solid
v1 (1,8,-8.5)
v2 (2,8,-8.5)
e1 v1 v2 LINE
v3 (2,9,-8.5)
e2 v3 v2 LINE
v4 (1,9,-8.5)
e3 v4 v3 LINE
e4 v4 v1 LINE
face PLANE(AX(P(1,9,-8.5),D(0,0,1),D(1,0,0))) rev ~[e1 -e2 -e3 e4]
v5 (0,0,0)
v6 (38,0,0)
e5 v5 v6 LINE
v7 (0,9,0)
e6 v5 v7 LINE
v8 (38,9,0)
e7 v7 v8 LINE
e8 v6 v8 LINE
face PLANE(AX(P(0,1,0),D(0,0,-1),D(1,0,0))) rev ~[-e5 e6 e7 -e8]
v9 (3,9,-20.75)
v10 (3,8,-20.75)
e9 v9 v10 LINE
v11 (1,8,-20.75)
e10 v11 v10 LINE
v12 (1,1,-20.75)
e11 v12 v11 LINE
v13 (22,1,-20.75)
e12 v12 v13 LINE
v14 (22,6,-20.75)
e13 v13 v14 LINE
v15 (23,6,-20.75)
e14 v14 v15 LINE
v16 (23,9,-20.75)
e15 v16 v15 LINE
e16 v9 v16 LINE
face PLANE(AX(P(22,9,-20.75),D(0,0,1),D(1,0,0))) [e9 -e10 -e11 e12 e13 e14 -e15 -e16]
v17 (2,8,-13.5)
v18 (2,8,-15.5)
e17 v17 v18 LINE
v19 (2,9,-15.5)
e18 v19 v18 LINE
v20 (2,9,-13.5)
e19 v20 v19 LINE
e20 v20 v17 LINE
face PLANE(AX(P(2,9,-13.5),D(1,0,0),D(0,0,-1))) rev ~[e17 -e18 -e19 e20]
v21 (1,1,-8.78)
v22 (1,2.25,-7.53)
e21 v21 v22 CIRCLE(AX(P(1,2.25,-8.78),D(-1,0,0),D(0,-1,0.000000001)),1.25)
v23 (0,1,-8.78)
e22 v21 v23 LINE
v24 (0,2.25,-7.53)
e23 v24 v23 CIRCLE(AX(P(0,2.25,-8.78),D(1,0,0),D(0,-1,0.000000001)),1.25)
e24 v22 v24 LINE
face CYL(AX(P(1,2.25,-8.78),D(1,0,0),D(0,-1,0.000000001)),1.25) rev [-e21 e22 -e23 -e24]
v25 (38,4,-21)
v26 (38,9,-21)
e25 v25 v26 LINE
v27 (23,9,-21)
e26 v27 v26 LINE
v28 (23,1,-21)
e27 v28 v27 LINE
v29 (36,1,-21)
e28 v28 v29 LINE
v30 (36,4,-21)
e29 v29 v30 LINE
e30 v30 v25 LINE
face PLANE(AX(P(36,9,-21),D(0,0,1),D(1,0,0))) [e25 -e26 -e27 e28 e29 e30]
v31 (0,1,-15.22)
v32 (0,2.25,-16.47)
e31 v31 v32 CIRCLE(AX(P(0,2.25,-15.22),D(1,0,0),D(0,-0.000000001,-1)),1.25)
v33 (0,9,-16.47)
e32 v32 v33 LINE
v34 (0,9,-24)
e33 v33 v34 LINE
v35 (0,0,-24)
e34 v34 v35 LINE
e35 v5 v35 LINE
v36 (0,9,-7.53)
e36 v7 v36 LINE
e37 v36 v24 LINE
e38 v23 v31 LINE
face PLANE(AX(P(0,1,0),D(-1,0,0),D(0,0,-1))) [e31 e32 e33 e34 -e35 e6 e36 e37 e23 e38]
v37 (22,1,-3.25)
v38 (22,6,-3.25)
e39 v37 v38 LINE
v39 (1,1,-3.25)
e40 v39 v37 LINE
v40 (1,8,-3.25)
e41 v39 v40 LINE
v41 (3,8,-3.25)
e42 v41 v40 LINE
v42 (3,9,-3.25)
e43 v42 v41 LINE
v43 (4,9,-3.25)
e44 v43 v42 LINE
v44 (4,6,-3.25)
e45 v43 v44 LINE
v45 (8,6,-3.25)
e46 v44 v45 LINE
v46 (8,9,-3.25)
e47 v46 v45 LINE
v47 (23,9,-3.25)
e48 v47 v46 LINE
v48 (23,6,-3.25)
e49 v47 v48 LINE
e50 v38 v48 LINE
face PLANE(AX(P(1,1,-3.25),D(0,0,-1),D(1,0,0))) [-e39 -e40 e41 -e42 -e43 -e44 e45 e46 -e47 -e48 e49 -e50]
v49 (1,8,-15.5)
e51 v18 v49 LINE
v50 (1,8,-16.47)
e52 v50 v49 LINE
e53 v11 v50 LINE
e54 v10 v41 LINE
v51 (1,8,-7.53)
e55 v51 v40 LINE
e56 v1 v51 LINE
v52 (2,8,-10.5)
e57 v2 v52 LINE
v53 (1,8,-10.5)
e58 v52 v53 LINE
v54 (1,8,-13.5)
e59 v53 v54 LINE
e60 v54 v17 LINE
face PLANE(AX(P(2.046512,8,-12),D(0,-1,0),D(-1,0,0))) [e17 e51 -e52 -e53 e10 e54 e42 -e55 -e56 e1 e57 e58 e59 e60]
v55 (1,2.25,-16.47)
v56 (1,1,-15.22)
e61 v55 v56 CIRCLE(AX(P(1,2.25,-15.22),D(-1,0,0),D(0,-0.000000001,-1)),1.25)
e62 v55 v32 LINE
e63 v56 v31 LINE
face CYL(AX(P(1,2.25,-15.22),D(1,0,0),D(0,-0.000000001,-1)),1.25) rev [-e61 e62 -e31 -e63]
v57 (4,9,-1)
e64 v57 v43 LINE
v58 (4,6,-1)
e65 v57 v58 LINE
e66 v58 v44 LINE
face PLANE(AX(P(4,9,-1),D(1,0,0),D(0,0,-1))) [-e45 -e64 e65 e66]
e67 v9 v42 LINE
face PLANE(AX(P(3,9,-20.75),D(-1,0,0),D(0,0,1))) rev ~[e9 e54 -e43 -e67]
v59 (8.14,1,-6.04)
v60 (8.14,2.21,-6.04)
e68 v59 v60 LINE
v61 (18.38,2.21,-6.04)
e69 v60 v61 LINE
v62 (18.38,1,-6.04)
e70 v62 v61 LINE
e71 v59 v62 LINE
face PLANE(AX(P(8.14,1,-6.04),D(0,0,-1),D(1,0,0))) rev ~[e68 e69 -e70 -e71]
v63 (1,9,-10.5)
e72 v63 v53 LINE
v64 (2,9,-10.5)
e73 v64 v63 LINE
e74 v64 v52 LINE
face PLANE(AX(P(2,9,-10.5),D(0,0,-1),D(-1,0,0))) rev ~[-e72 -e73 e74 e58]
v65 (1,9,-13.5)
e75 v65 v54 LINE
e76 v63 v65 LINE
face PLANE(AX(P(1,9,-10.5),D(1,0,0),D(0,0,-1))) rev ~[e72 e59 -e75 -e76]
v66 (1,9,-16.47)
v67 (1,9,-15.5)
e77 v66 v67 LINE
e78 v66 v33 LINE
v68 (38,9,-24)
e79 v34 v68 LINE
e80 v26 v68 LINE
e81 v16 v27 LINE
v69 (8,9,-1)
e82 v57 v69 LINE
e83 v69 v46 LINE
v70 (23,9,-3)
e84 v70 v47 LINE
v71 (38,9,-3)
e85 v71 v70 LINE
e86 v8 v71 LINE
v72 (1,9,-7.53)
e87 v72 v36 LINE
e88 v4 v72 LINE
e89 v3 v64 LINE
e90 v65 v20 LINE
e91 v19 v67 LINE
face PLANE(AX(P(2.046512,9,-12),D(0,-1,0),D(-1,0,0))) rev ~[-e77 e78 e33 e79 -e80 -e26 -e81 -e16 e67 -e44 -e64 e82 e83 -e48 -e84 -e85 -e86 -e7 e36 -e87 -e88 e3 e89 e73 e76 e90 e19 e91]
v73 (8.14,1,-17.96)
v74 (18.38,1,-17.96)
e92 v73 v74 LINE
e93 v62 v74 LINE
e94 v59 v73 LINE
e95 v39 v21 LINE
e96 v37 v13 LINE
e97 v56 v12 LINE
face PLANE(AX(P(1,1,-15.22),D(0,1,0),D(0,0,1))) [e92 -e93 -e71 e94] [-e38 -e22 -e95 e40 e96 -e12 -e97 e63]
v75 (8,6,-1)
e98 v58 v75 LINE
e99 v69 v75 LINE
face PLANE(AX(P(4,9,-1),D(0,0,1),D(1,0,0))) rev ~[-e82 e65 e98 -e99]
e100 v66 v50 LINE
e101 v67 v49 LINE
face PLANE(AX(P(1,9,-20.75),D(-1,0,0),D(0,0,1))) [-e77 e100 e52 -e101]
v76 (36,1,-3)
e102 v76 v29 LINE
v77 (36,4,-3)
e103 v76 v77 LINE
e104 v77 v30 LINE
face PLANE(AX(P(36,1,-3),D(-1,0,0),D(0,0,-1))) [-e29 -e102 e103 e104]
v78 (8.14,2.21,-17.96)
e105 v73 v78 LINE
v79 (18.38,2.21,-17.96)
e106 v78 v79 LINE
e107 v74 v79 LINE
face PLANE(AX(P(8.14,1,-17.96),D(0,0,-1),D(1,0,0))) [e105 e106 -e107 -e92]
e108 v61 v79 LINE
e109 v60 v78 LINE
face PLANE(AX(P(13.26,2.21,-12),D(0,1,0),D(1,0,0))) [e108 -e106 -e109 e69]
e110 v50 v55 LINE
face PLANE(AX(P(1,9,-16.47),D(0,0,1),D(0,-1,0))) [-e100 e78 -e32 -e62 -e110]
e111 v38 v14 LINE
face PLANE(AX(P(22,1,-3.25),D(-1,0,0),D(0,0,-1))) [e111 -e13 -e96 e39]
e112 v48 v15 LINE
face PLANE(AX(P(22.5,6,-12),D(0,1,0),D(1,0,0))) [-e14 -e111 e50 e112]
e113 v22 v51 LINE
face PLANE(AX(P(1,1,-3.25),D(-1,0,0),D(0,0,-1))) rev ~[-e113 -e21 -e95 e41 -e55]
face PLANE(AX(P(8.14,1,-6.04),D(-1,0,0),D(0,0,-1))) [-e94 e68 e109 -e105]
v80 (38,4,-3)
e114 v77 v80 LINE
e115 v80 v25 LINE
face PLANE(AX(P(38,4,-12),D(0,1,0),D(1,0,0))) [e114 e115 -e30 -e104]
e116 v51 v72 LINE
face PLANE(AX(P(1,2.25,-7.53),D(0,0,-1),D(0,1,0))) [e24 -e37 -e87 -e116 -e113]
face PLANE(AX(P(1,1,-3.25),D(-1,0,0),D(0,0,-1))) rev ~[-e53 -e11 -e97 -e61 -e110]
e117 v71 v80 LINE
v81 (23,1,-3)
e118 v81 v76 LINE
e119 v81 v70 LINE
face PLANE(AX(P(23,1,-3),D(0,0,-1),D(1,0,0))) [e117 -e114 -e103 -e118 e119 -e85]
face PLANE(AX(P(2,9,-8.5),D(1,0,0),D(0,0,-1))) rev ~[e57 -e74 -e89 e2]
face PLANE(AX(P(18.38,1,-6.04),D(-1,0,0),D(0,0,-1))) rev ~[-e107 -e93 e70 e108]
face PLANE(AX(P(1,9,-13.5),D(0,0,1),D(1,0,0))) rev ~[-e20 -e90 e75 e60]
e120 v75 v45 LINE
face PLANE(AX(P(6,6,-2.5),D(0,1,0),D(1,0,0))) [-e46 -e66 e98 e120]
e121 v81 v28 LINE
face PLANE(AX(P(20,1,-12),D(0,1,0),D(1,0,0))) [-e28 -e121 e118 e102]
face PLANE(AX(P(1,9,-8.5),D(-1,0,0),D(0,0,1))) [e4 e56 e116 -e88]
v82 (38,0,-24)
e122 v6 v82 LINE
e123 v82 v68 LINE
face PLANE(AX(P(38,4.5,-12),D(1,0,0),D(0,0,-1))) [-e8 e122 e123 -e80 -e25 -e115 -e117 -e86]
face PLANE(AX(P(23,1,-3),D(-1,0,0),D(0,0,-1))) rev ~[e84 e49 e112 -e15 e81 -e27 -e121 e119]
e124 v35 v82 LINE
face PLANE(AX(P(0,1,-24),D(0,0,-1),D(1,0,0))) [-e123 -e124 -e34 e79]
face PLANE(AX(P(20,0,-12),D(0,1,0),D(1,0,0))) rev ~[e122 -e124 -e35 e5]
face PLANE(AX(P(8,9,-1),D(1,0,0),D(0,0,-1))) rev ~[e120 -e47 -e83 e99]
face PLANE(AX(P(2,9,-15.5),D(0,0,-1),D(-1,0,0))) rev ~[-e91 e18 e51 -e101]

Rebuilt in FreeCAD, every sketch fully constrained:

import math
import FreeCAD as App
import Part
import Sketcher
from FreeCAD import Vector
Q = App.Units.Quantity

doc = App.newDocument("Part")
body = doc.addObject("PartDesign::Body", "Body")

# Sketch on XZ plane
sketch1 = doc.addObject("Sketcher::SketchObject", "Sketch")
body.addObject(sketch1)
sketch1.AttachmentSupport = (doc.XZ_Plane, [""])
sketch1.MapMode = "FlatFace"
sketch1.addGeometry([
    Part.LineSegment(Vector(0, -24, 0), Vector(0, 0, 0)),
    Part.LineSegment(Vector(0, 0, 0), Vector(40, 0, 0)),
    Part.LineSegment(Vector(40, 0, 0), Vector(40, -24, 0)),
    Part.LineSegment(Vector(40, -24, 0), Vector(0, -24, 0)),
], False)
sketch1.addConstraint([
    Sketcher.Constraint("Coincident", 0, 2, 1, 1),
    Sketcher.Constraint("Coincident", 1, 2, 2, 1),
    Sketcher.Constraint("Coincident", 2, 2, 3, 1),
    Sketcher.Constraint("Coincident", 3, 2, 0, 1),
    Sketcher.Constraint("Vertical", 0),
    Sketcher.Constraint("Horizontal", 1),
    Sketcher.Constraint("Vertical", 2),
    Sketcher.Constraint("Horizontal", 3),
    Sketcher.Constraint("Coincident", 0, 2, -1, 1),
    Sketcher.Constraint("DistanceX", 1, 1, 1, 2, Q("40 mm")),
    Sketcher.Constraint("DistanceY", 0, 1, 0, 2, Q("24 mm")),
])
pad1 = doc.addObject("PartDesign::Pad", "Pad")
body.addObject(pad1)
pad1.Profile = sketch1
pad1.Length = 1
pad1.Reversed = True

# Sketch on XZ plane
sketch2 = doc.addObject("Sketcher::SketchObject", "Sketch001")
body.addObject(sketch2)
sketch2.AttachmentSupport = (doc.XZ_Plane, [""])
sketch2.MapMode = "FlatFace"
sketch2.AttachmentOffset = App.Placement(Vector(0, 0, -1), App.Rotation())
sketch2.addGeometry([
    Part.LineSegment(Vector(0, -24, 0), Vector(0, 0, 0)),  # 0
    Part.LineSegment(Vector(0, 0, 0), Vector(40, 0, 0)),  # 1
    Part.LineSegment(Vector(40, 0, 0), Vector(40, -24, 0)),  # 2
    Part.LineSegment(Vector(40, -24, 0), Vector(0, -24, 0)),  # 3
    Part.LineSegment(Vector(22, -3, 0), Vector(1, -3, 0)),  # 4
    Part.LineSegment(Vector(1, -3, 0), Vector(1, -21, 0)),  # 5
    Part.LineSegment(Vector(1, -21, 0), Vector(22, -21, 0)),  # 6
    Part.LineSegment(Vector(22, -21, 0), Vector(22, -3, 0)),  # 7
    Part.LineSegment(Vector(36, -3, 0), Vector(23, -3, 0)),  # 8
    Part.LineSegment(Vector(23, -3, 0), Vector(23, -21, 0)),  # 9
    Part.LineSegment(Vector(23, -21, 0), Vector(36, -21, 0)),  # 10
    Part.LineSegment(Vector(36, -21, 0), Vector(36, -3, 0)),  # 11
], False)
sketch2.addConstraint([
    Sketcher.Constraint("Coincident", 0, 2, 1, 1),
    Sketcher.Constraint("Coincident", 1, 2, 2, 1),
    Sketcher.Constraint("Coincident", 2, 2, 3, 1),
    Sketcher.Constraint("Coincident", 3, 2, 0, 1),
    Sketcher.Constraint("Coincident", 4, 2, 5, 1),
    Sketcher.Constraint("Coincident", 5, 2, 6, 1),
    Sketcher.Constraint("Coincident", 6, 2, 7, 1),
    Sketcher.Constraint("Coincident", 7, 2, 4, 1),
    Sketcher.Constraint("Coincident", 8, 2, 9, 1),
    Sketcher.Constraint("Coincident", 9, 2, 10, 1),
    Sketcher.Constraint("Coincident", 10, 2, 11, 1),
    Sketcher.Constraint("Coincident", 11, 2, 8, 1),
    Sketcher.Constraint("Vertical", 0),
    Sketcher.Constraint("Horizontal", 1),
    Sketcher.Constraint("Vertical", 2),
    Sketcher.Constraint("Horizontal", 3),
    Sketcher.Constraint("Horizontal", 4),
    Sketcher.Constraint("Vertical", 5),
    Sketcher.Constraint("Horizontal", 6),
    Sketcher.Constraint("Vertical", 7),
    Sketcher.Constraint("Horizontal", 8),
    Sketcher.Constraint("Vertical", 9),
    Sketcher.Constraint("Horizontal", 10),
    Sketcher.Constraint("Vertical", 11),
    Sketcher.Constraint("Coincident", 0, 2, -1, 1),
    Sketcher.Constraint("DistanceX", 1, 1, 1, 2, Q("40 mm")),
    Sketcher.Constraint("DistanceX", 4, 2, 4, 1, Q("21 mm")),
    Sketcher.Constraint("DistanceX", 8, 2, 8, 1, Q("13 mm")),
    Sketcher.Constraint("DistanceY", 0, 1, 0, 2, Q("24 mm")),
    Sketcher.Constraint("DistanceY", 9, 2, 9, 1, Q("18 mm")),
    Sketcher.Constraint("DistanceY", 5, 2, 5, 1, Q("17.5 mm")),
    Sketcher.Constraint("DistanceX", -1, 1, 4, 2, Q("1 mm")),
    Sketcher.Constraint("DistanceX", -1, 1, 8, 2, Q("23 mm")),
    Sketcher.Constraint("DistanceY", 8, 2, -1, 1, Q("3 mm")),
    Sketcher.Constraint("DistanceY", 4, 2, -1, 1, Q("3.25 mm")),
])
pad2 = doc.addObject("PartDesign::Pad", "Pad001")
body.addObject(pad2)
pad2.Profile = sketch2
pad2.Length = 8
pad2.Reversed = True

# Sketch on XZ plane
sketch3 = doc.addObject("Sketcher::SketchObject", "Sketch002")
body.addObject(sketch3)
sketch3.AttachmentSupport = (doc.XZ_Plane, [""])
sketch3.MapMode = "FlatFace"
sketch3.AttachmentOffset = App.Placement(Vector(0, 0, -9), App.Rotation())
sketch3.addGeometry([
    Part.LineSegment(Vector(22, -20.8, 0), Vector(22, -3.2, 0)),
    Part.LineSegment(Vector(22, -3.2, 0), Vector(23, -3.2, 0)),
    Part.LineSegment(Vector(23, -3.2, 0), Vector(23, -20.8, 0)),
    Part.LineSegment(Vector(23, -20.8, 0), Vector(22, -20.8, 0)),
], False)
sketch3.addConstraint([
    Sketcher.Constraint("Coincident", 0, 2, 1, 1),
    Sketcher.Constraint("Coincident", 1, 2, 2, 1),
    Sketcher.Constraint("Coincident", 2, 2, 3, 1),
    Sketcher.Constraint("Coincident", 3, 2, 0, 1),
    Sketcher.Constraint("Vertical", 0),
    Sketcher.Constraint("Horizontal", 1),
    Sketcher.Constraint("Vertical", 2),
    Sketcher.Constraint("Horizontal", 3),
    Sketcher.Constraint("DistanceX", 1, 1, 1, 2, Q("1 mm")),
    Sketcher.Constraint("DistanceY", 0, 1, 0, 2, Q("17.5 mm")),
    Sketcher.Constraint("DistanceX", -1, 1, 0, 2, Q("22 mm")),
    Sketcher.Constraint("DistanceY", 0, 2, -1, 1, Q("3.25 mm")),
])
pocket1 = doc.addObject("PartDesign::Pocket", "Pocket")
body.addObject(pocket1)
pocket1.Profile = sketch3
pocket1.Length = 3
pocket1.Reversed = True

# Sketch on XZ plane
sketch4 = doc.addObject("Sketcher::SketchObject", "Sketch003")
body.addObject(sketch4)
sketch4.AttachmentSupport = (doc.XZ_Plane, [""])
sketch4.MapMode = "FlatFace"
sketch4.AttachmentOffset = App.Placement(Vector(0, 0, -1), App.Rotation())
sketch4.addGeometry([
    Part.LineSegment(Vector(8, -18, 0), Vector(8, -6, 0)),
    Part.LineSegment(Vector(8, -6, 0), Vector(18, -6, 0)),
    Part.LineSegment(Vector(18, -6, 0), Vector(18, -18, 0)),
    Part.LineSegment(Vector(18, -18, 0), Vector(8, -18, 0)),
], False)
sketch4.addConstraint([
    Sketcher.Constraint("Coincident", 0, 2, 1, 1),
    Sketcher.Constraint("Coincident", 1, 2, 2, 1),
    Sketcher.Constraint("Coincident", 2, 2, 3, 1),
    Sketcher.Constraint("Coincident", 3, 2, 0, 1),
    Sketcher.Constraint("Vertical", 0),
    Sketcher.Constraint("Horizontal", 1),
    Sketcher.Constraint("Vertical", 2),
    Sketcher.Constraint("Horizontal", 3),
    Sketcher.Constraint("DistanceX", 1, 1, 1, 2, Q("10.24 mm")),
    Sketcher.Constraint("DistanceY", 0, 1, 0, 2, Q("11.92 mm")),
    Sketcher.Constraint("DistanceX", -1, 1, 0, 2, Q("8.14 mm")),
    Sketcher.Constraint("DistanceY", 0, 2, -1, 1, Q("6.04 mm")),
])
pad3 = doc.addObject("PartDesign::Pad", "Pad002")
body.addObject(pad3)
pad3.Profile = sketch4
pad3.Length = 1.21
pad3.Reversed = True

# Sketch on YZ plane
sketch5 = doc.addObject("Sketcher::SketchObject", "Sketch004")
body.addObject(sketch5)
sketch5.AttachmentSupport = (doc.YZ_Plane, [""])
sketch5.MapMode = "FlatFace"
sketch5.AttachmentOffset = App.Placement(Vector(0, 0, 1), App.Rotation())
sketch5.addGeometry([
    Part.LineSegment(Vector(9, -7.5, 0), Vector(2.2, -7.5, 0)),  # 0
    Part.ArcOfCircle(Part.Circle(Vector(2.3, -8.8, 0), Vector(0, 0, 1), 1.3), math.radians(90), math.radians(180)),  # 1
    Part.LineSegment(Vector(1, -8.8, 0), Vector(1, -15.2, 0)),  # 2
    Part.ArcOfCircle(Part.Circle(Vector(2.3, -15.2, 0), Vector(0, 0, 1), 1.3), math.radians(-180), math.radians(-90)),  # 3
    Part.LineSegment(Vector(2.2, -16.5, 0), Vector(9, -16.5, 0)),  # 4
    Part.LineSegment(Vector(9, -16.5, 0), Vector(9, -7.5, 0)),  # 5
], False)
sketch5.addConstraint([
    Sketcher.Constraint("Tangent", 0, 2, 1, 1),
    Sketcher.Constraint("Tangent", 1, 2, 2, 1),
    Sketcher.Constraint("Tangent", 2, 2, 3, 1),
    Sketcher.Constraint("Tangent", 3, 2, 4, 1),
    Sketcher.Constraint("Coincident", 4, 2, 5, 1),
    Sketcher.Constraint("Coincident", 5, 2, 0, 1),
    Sketcher.Constraint("Horizontal", 0),
    Sketcher.Constraint("Vertical", 2),
    Sketcher.Constraint("Horizontal", 4),
    Sketcher.Constraint("Vertical", 5),
    Sketcher.Constraint("Equal", 1, 3),
    Sketcher.Constraint("Radius", 1, Q("1.25 mm")),
    Sketcher.Constraint("DistanceX", -1, 1, 1, 2, Q("1 mm")),
    Sketcher.Constraint("DistanceX", -1, 1, 4, 2, Q("9 mm")),
    Sketcher.Constraint("DistanceY", 2, 2, 2, 1, Q("6.44 mm")),
    Sketcher.Constraint("DistanceY", 1, 3, -1, 1, Q("8.78 mm")),
])
pocket2 = doc.addObject("PartDesign::Pocket", "Pocket001")
body.addObject(pocket2)
pocket2.Profile = sketch5
pocket2.Length = 2

# Sketch on XZ plane
sketch6 = doc.addObject("Sketcher::SketchObject", "Sketch005")
body.addObject(sketch6)
sketch6.AttachmentSupport = (doc.XZ_Plane, [""])
sketch6.MapMode = "FlatFace"
sketch6.AttachmentOffset = App.Placement(Vector(0, 0, -9), App.Rotation())
sketch6.addGeometry([
    Part.LineSegment(Vector(36, -21, 0), Vector(36, -3, 0)),
    Part.LineSegment(Vector(36, -3, 0), Vector(40, -3, 0)),
    Part.LineSegment(Vector(40, -3, 0), Vector(40, -21, 0)),
    Part.LineSegment(Vector(40, -21, 0), Vector(36, -21, 0)),
], False)
sketch6.addConstraint([
    Sketcher.Constraint("Coincident", 0, 2, 1, 1),
    Sketcher.Constraint("Coincident", 1, 2, 2, 1),
    Sketcher.Constraint("Coincident", 2, 2, 3, 1),
    Sketcher.Constraint("Coincident", 3, 2, 0, 1),
    Sketcher.Constraint("Vertical", 0),
    Sketcher.Constraint("Horizontal", 1),
    Sketcher.Constraint("Vertical", 2),
    Sketcher.Constraint("Horizontal", 3),
    Sketcher.Constraint("DistanceX", 1, 1, 1, 2, Q("4 mm")),
    Sketcher.Constraint("DistanceY", 0, 1, 0, 2, Q("18 mm")),
    Sketcher.Constraint("DistanceX", -1, 1, 0, 2, Q("36 mm")),
    Sketcher.Constraint("DistanceY", 0, 2, -1, 1, Q("3 mm")),
])
pocket3 = doc.addObject("PartDesign::Pocket", "Pocket002")
body.addObject(pocket3)
pocket3.Profile = sketch6
pocket3.Length = 5
pocket3.Reversed = True

# Sketch on YZ plane
sketch7 = doc.addObject("Sketcher::SketchObject", "Sketch006")
body.addObject(sketch7)
sketch7.AttachmentSupport = (doc.YZ_Plane, [""])
sketch7.MapMode = "FlatFace"
sketch7.AttachmentOffset = App.Placement(Vector(0, 0, 40), App.Rotation())
sketch7.addGeometry([
    Part.LineSegment(Vector(9, 0, 0), Vector(0, 0, 0)),
    Part.LineSegment(Vector(0, 0, 0), Vector(0, -24, 0)),
    Part.LineSegment(Vector(0, -24, 0), Vector(9, -24, 0)),
    Part.LineSegment(Vector(9, -24, 0), Vector(9, 0, 0)),
], False)
sketch7.addConstraint([
    Sketcher.Constraint("Coincident", 0, 2, 1, 1),
    Sketcher.Constraint("Coincident", 1, 2, 2, 1),
    Sketcher.Constraint("Coincident", 2, 2, 3, 1),
    Sketcher.Constraint("Coincident", 3, 2, 0, 1),
    Sketcher.Constraint("Horizontal", 0),
    Sketcher.Constraint("Vertical", 1),
    Sketcher.Constraint("Horizontal", 2),
    Sketcher.Constraint("Vertical", 3),
    Sketcher.Constraint("Coincident", 0, 2, -1, 1),
    Sketcher.Constraint("DistanceX", 0, 2, 0, 1, Q("9 mm")),
    Sketcher.Constraint("DistanceY", 1, 2, 1, 1, Q("24 mm")),
])
pocket4 = doc.addObject("PartDesign::Pocket", "Pocket003")
body.addObject(pocket4)
pocket4.Profile = sketch7
pocket4.Length = 2

# Sketch on XZ plane
sketch8 = doc.addObject("Sketcher::SketchObject", "Sketch007")
body.addObject(sketch8)
sketch8.AttachmentSupport = (doc.XZ_Plane, [""])
sketch8.MapMode = "FlatFace"
sketch8.AttachmentOffset = App.Placement(Vector(0, 0, -9), App.Rotation())
sketch8.addGeometry([
    Part.LineSegment(Vector(4, -4, 0), Vector(4, -1, 0)),
    Part.LineSegment(Vector(4, -1, 0), Vector(8, -1, 0)),
    Part.LineSegment(Vector(8, -1, 0), Vector(8, -4, 0)),
    Part.LineSegment(Vector(8, -4, 0), Vector(4, -4, 0)),
], False)
sketch8.addConstraint([
    Sketcher.Constraint("Coincident", 0, 2, 1, 1),
    Sketcher.Constraint("Coincident", 1, 2, 2, 1),
    Sketcher.Constraint("Coincident", 2, 2, 3, 1),
    Sketcher.Constraint("Coincident", 3, 2, 0, 1),
    Sketcher.Constraint("Vertical", 0),
    Sketcher.Constraint("Horizontal", 1),
    Sketcher.Constraint("Vertical", 2),
    Sketcher.Constraint("Horizontal", 3),
    Sketcher.Constraint("DistanceX", 1, 1, 1, 2, Q("4 mm")),
    Sketcher.Constraint("DistanceY", 0, 1, 0, 2, Q("3 mm")),
    Sketcher.Constraint("DistanceX", -1, 1, 0, 2, Q("4 mm")),
    Sketcher.Constraint("DistanceY", 0, 2, -1, 1, Q("1 mm")),
])
pocket5 = doc.addObject("PartDesign::Pocket", "Pocket004")
body.addObject(pocket5)
pocket5.Profile = sketch8
pocket5.Length = 3
pocket5.Reversed = True

# Sketch on XZ plane
sketch9 = doc.addObject("Sketcher::SketchObject", "Sketch008")
body.addObject(sketch9)
sketch9.AttachmentSupport = (doc.XZ_Plane, [""])
sketch9.MapMode = "FlatFace"
sketch9.AttachmentOffset = App.Placement(Vector(0, 0, -9), App.Rotation())
sketch9.addGeometry([
    Part.LineSegment(Vector(3, -20.8, 0), Vector(1, -20.8, 0)),  # 0
    Part.LineSegment(Vector(1, -20.8, 0), Vector(1, -15.5, 0)),  # 1
    Part.LineSegment(Vector(1, -15.5, 0), Vector(2, -15.5, 0)),  # 2
    Part.LineSegment(Vector(2, -15.5, 0), Vector(2, -13.5, 0)),  # 3
    Part.LineSegment(Vector(2, -13.5, 0), Vector(1, -13.5, 0)),  # 4
    Part.LineSegment(Vector(1, -13.5, 0), Vector(1, -10.5, 0)),  # 5
    Part.LineSegment(Vector(1, -10.5, 0), Vector(2, -10.5, 0)),  # 6
    Part.LineSegment(Vector(2, -10.5, 0), Vector(2, -8.5, 0)),  # 7
    Part.LineSegment(Vector(2, -8.5, 0), Vector(1, -8.5, 0)),  # 8
    Part.LineSegment(Vector(1, -8.5, 0), Vector(1, -3.2, 0)),  # 9
    Part.LineSegment(Vector(1, -3.2, 0), Vector(3, -3.2, 0)),  # 10
    Part.LineSegment(Vector(3, -3.2, 0), Vector(3, -20.8, 0)),  # 11
], False)
sketch9.addConstraint([
    Sketcher.Constraint("Coincident", 0, 2, 1, 1),
    Sketcher.Constraint("Coincident", 1, 2, 2, 1),
    Sketcher.Constraint("Coincident", 2, 2, 3, 1),
    Sketcher.Constraint("Coincident", 3, 2, 4, 1),
    Sketcher.Constraint("Coincident", 4, 2, 5, 1),
    Sketcher.Constraint("Coincident", 5, 2, 6, 1),
    Sketcher.Constraint("Coincident", 6, 2, 7, 1),
    Sketcher.Constraint("Coincident", 7, 2, 8, 1),
    Sketcher.Constraint("Coincident", 8, 2, 9, 1),
    Sketcher.Constraint("Coincident", 9, 2, 10, 1),
    Sketcher.Constraint("Coincident", 10, 2, 11, 1),
    Sketcher.Constraint("Coincident", 11, 2, 0, 1),
    Sketcher.Constraint("Horizontal", 0),
    Sketcher.Constraint("Vertical", 1),
    Sketcher.Constraint("Horizontal", 2),
    Sketcher.Constraint("Vertical", 3),
    Sketcher.Constraint("Horizontal", 4),
    Sketcher.Constraint("Vertical", 5),
    Sketcher.Constraint("Horizontal", 6),
    Sketcher.Constraint("Vertical", 7),
    Sketcher.Constraint("Horizontal", 8),
    Sketcher.Constraint("Vertical", 9),
    Sketcher.Constraint("Horizontal", 10),
    Sketcher.Constraint("Vertical", 11),
    Sketcher.Constraint("Vertical", 1, 2, 4, 2),
    Sketcher.Constraint("Vertical", 3, 2, 6, 2),
    Sketcher.Constraint("Vertical", 5, 2, 8, 2),
    Sketcher.Constraint("Equal", 10, 3),
    Sketcher.Constraint("Equal", 3, 7),
    Sketcher.Constraint("Equal", 1, 9),
    Sketcher.Constraint("DistanceX", 0, 2, 0, 1, Q("2 mm")),
    Sketcher.Constraint("DistanceX", 2, 1, 2, 2, Q("1 mm")),
    Sketcher.Constraint("DistanceY", 5, 1, 5, 2, Q("3 mm")),
    Sketcher.Constraint("DistanceY", 11, 2, 11, 1, Q("17.5 mm")),
    Sketcher.Constraint("DistanceX", -1, 1, 0, 2, Q("1 mm")),
    Sketcher.Constraint("DistanceY", 1, 2, -1, 1, Q("15.5 mm")),
])
pad4 = doc.addObject("PartDesign::Pad", "Pad003")
body.addObject(pad4)
pad4.Profile = sketch9
pad4.Length = 1

doc.recompute()
